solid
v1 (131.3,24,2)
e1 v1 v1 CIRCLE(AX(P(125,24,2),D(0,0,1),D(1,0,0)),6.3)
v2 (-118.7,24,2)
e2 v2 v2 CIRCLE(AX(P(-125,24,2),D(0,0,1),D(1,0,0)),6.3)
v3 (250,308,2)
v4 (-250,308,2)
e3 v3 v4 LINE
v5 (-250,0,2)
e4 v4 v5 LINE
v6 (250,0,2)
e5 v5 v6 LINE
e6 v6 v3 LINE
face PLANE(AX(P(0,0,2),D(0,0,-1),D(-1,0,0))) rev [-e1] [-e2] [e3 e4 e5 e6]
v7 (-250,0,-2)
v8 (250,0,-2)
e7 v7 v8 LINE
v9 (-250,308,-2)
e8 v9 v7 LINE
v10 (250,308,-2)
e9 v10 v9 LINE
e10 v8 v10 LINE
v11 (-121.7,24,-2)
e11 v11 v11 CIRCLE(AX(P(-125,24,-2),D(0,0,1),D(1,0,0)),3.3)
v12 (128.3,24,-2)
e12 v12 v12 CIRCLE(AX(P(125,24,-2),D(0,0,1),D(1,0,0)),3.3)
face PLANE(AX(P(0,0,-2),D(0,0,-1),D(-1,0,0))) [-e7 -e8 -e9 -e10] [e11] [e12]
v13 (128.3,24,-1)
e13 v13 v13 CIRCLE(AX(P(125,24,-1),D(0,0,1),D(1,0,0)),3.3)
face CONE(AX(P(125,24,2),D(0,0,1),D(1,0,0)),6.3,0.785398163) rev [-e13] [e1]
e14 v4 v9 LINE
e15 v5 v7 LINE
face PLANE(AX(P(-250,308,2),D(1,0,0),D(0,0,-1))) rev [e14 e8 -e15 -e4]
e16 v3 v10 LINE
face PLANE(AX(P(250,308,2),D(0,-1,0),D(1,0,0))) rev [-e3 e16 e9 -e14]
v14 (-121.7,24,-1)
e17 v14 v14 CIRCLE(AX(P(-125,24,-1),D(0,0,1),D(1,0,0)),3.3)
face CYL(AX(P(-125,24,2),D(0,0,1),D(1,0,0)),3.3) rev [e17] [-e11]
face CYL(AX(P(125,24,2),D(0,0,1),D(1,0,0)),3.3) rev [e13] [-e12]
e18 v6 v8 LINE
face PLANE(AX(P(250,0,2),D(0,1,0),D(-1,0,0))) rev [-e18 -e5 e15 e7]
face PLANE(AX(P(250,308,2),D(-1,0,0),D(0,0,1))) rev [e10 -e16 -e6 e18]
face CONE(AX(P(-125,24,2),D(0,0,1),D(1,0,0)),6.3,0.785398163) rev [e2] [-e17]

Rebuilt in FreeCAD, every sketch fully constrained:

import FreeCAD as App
import Part
import Sketcher
Q = App.Units.Quantity


def add_polygon(sketch, points):
    """Adds a closed chain of lines whose ends are joined by coincident constraints."""
    first, n = sketch.GeometryCount, len(points)
    for a, b in zip(points, points[1:] + points[:1]):
        sketch.addGeometry(Part.LineSegment(App.Vector(*a, 0), App.Vector(*b, 0)), False)
    for i in range(n):
        sketch.addConstraint(Sketcher.Constraint("Coincident", first + i, 2, first + (i + 1) % n, 1))

doc = App.newDocument("Part")
body = doc.addObject("PartDesign::Body", "Body")

# Sketch on XY plane
sketch1 = doc.addObject("Sketcher::SketchObject", "Sketch")
body.addObject(sketch1)
sketch1.AttachmentSupport = (doc.XY_Plane, [""])
sketch1.MapMode = "FlatFace"
add_polygon(sketch1, [(-250, 308), (-250, 0), (250, 0), (250, 308)])  # lines 0-3
sketch1.addConstraint([
    Sketcher.Constraint("Vertical", 0),
    Sketcher.Constraint("Horizontal", 1),
    Sketcher.Constraint("Vertical", 2),
    Sketcher.Constraint("Horizontal", 3),
    Sketcher.Constraint("Symmetric", 0, 2, 1, 2, -1, 1),
    Sketcher.Constraint("DistanceX", 1, 1, 1, 2, Q("500 mm")),
    Sketcher.Constraint("DistanceY", 0, 2, 0, 1, Q("308 mm")),
])
pad1 = doc.addObject("PartDesign::Pad", "Pad")
body.addObject(pad1)
pad1.Profile = sketch1
pad1.Length = 4
pad1.Midplane = True

# Sketch on YZ plane
sketch2 = doc.addObject("Sketcher::SketchObject", "Sketch001")
body.addObject(sketch2)
sketch2.AttachmentSupport = (doc.YZ_Plane, [""])
sketch2.MapMode = "FlatFace"
sketch2.AttachmentOffset = App.Placement(App.Vector(0, 0, -125), App.Rotation())
add_polygon(sketch2, [(24, -2), (24, 2), (17.7, 2), (20.7, -1), (20.7, -2)])  # lines 0-4
sketch2.addGeometry(Part.LineSegment(App.Vector(24, 2, 0), App.Vector(24, -2, 0)), True)  # axis
sketch2.addConstraint([
    Sketcher.Constraint("Vertical", 0),
    Sketcher.Constraint("Horizontal", 1),
    Sketcher.Constraint("Vertical", 3),
    Sketcher.Constraint("Horizontal", 4),
    Sketcher.Constraint("Vertical", 5),
    Sketcher.Constraint("Coincident", 5, 1, 0, 2),
    Sketcher.Constraint("Horizontal", 3, 2, 5, 2),
    Sketcher.Constraint("DistanceY", 0, 1, 0, 2, Q("4 mm")),
    Sketcher.Constraint("DistanceY", 3, 2, 3, 1, Q("1 mm")),
    Sketcher.Constraint("Angle", 2, Q("-45 deg")),
    Sketcher.Constraint("DistanceX", 1, 2, 1, 1, Q("6.3 mm")),
    Sketcher.Constraint("DistanceX", -1, 1, 0, 2, Q("24 mm")),
    Sketcher.Constraint("DistanceY", -1, 1, 0, 2, Q("2 mm")),
])
groove = doc.addObject("PartDesign::Groove", "Groove")
body.addObject(groove)
groove.Profile = sketch2
groove.ReferenceAxis = (sketch2, ["Axis0"])
groove.Angle = 360
doc.recompute()

linearpattern = doc.addObject("PartDesign::LinearPattern", "LinearPattern")
body.addObject(linearpattern)
linearpattern.Originals = [groove]
linearpattern.Direction = (doc.X_Axis, [""])
linearpattern.Mode = "offset"
linearpattern.Offset = 250
linearpattern.Occurrences = 2
body.Tip = linearpattern

doc.recompute()
